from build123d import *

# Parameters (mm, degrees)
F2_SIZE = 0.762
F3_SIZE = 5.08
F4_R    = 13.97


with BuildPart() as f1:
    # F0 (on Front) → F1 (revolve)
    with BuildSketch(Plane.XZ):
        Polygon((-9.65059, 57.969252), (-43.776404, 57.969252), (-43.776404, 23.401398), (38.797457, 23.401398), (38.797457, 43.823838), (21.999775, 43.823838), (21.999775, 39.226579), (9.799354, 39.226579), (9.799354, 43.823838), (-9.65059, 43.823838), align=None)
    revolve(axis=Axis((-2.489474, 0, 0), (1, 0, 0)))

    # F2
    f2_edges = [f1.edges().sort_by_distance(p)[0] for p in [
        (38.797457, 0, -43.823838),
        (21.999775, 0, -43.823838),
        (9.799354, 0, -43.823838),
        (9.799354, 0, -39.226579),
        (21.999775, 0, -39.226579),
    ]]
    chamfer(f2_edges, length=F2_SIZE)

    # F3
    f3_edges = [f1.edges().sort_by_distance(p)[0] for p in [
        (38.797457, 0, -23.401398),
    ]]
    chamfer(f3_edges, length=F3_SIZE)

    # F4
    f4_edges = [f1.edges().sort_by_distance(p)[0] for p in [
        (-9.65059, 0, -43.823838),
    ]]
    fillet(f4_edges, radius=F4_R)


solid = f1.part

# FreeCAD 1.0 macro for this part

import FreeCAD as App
import Part
import Sketcher

V = App.Vector
Q = App.Units.Quantity


def edges_at(feature, points):
    """Names of the edges that pass closest to the given points."""
    edges = feature.Shape.Edges
    near = lambda p: min(range(len(edges)), key=lambda i: edges[i].distToShape(Part.Vertex(*p))[0])
    return sorted({f"Edge{near(p) + 1}" for p in points})


def add_polygon(sketch, points):
    """Adds a closed chain of lines whose ends are joined by coincident constraints."""
    first, n = sketch.GeometryCount, len(points)
    for a, b in zip(points, points[1:] + points[:1]):
        sketch.addGeometry(Part.LineSegment(App.Vector(*a, 0), App.Vector(*b, 0)), False)
    for i in range(n):
        sketch.addConstraint(Sketcher.Constraint("Coincident", first + i, 2, first + (i + 1) % n, 1))

doc = App.newDocument("Part")
body = doc.addObject("PartDesign::Body", "Body")

# Sketch on XZ plane
sketch1 = body.newObject("Sketcher::SketchObject", "Sketch")
sketch1.AttachmentSupport = (doc.getObject("XZ_Plane"), [""])
sketch1.MapMode = "FlatFace"
add_polygon(sketch1, [(-9.7, 58), (-43.8, 58), (-43.8, 23.4), (38.8, 23.4), (38.8, 43.8), (22, 43.8), (22, 39.2), (9.8, 39.2), (9.8, 43.8), (-9.7, 43.8)])  # lines 0-9
sketch1.addConstraint(Sketcher.Constraint("Horizontal", 0))
sketch1.addConstraint(Sketcher.Constraint("Vertical", 1))
sketch1.addConstraint(Sketcher.Constraint("Horizontal", 2))
sketch1.addConstraint(Sketcher.Constraint("Vertical", 3))
sketch1.addConstraint(Sketcher.Constraint("Horizontal", 4))
sketch1.addConstraint(Sketcher.Constraint("Vertical", 5))
sketch1.addConstraint(Sketcher.Constraint("Horizontal", 6))
sketch1.addConstraint(Sketcher.Constraint("Vertical", 7))
sketch1.addConstraint(Sketcher.Constraint("Horizontal", 8))
sketch1.addConstraint(Sketcher.Constraint("Vertical", 9))
sketch1.addConstraint(Sketcher.Constraint("Horizontal", 4, 2, 7, 2))
sketch1.addConstraint(Sketcher.Constraint("DistanceX", 2, 1, 2, 2, Q("82.573861 mm")))
sketch1.addConstraint(Sketcher.Constraint("DistanceX", 6, 2, 6, 1, Q("12.200421 mm")))
sketch1.addConstraint(Sketcher.Constraint("DistanceY", 3, 1, 3, 2, Q("20.42244 mm")))
sketch1.addConstraint(Sketcher.Constraint("DistanceY", 5, 2, 5, 1, Q("4.597259 mm")))
sketch1.addConstraint(Sketcher.Constraint("DistanceY", -1, 1, 1, 2, Q("23.401398 mm")))
sketch1.addConstraint(Sketcher.Constraint("DistanceX", 0, 2, 0, 1, Q("34.125814 mm")))
sketch1.addConstraint(Sketcher.Constraint("DistanceX", 4, 2, 4, 1, Q("16.797682 mm")))
sketch1.addConstraint(Sketcher.Constraint("DistanceY", 1, 2, 1, 1, Q("34.567854 mm")))
sketch1.addConstraint(Sketcher.Constraint("DistanceX", 8, 2, -1, 1, Q("9.65059 mm")))
revolution = body.newObject("PartDesign::Revolution", "Revolution")
revolution.Profile = sketch1
revolution.ReferenceAxis = (sketch1, ["H_Axis"])
revolution.Angle = 360
doc.recompute()

chamfer = body.newObject("PartDesign::Chamfer", "Chamfer")
chamfer.Base = (revolution, edges_at(revolution, [
    (38.797, 0, -43.824),
    (22, 0, -43.824),
    (9.799, 0, -43.824),
    (9.799, 0, -39.227),
    (22, 0, -39.227),
]))
chamfer.Size = Q("0.03 in")
doc.recompute()

chamfer2 = body.newObject("PartDesign::Chamfer", "Chamfer001")
chamfer2.Base = (chamfer, edges_at(chamfer, [(38.797, 0, -23.401)]))
chamfer2.Size = Q("0.2 in")
doc.recompute()

fillet = body.newObject("PartDesign::Fillet", "Fillet")
fillet.Base = (chamfer2, edges_at(chamfer2, [(-9.651, 0, -43.824)]))
fillet.Radius = Q("0.55 in")

doc.recompute()
